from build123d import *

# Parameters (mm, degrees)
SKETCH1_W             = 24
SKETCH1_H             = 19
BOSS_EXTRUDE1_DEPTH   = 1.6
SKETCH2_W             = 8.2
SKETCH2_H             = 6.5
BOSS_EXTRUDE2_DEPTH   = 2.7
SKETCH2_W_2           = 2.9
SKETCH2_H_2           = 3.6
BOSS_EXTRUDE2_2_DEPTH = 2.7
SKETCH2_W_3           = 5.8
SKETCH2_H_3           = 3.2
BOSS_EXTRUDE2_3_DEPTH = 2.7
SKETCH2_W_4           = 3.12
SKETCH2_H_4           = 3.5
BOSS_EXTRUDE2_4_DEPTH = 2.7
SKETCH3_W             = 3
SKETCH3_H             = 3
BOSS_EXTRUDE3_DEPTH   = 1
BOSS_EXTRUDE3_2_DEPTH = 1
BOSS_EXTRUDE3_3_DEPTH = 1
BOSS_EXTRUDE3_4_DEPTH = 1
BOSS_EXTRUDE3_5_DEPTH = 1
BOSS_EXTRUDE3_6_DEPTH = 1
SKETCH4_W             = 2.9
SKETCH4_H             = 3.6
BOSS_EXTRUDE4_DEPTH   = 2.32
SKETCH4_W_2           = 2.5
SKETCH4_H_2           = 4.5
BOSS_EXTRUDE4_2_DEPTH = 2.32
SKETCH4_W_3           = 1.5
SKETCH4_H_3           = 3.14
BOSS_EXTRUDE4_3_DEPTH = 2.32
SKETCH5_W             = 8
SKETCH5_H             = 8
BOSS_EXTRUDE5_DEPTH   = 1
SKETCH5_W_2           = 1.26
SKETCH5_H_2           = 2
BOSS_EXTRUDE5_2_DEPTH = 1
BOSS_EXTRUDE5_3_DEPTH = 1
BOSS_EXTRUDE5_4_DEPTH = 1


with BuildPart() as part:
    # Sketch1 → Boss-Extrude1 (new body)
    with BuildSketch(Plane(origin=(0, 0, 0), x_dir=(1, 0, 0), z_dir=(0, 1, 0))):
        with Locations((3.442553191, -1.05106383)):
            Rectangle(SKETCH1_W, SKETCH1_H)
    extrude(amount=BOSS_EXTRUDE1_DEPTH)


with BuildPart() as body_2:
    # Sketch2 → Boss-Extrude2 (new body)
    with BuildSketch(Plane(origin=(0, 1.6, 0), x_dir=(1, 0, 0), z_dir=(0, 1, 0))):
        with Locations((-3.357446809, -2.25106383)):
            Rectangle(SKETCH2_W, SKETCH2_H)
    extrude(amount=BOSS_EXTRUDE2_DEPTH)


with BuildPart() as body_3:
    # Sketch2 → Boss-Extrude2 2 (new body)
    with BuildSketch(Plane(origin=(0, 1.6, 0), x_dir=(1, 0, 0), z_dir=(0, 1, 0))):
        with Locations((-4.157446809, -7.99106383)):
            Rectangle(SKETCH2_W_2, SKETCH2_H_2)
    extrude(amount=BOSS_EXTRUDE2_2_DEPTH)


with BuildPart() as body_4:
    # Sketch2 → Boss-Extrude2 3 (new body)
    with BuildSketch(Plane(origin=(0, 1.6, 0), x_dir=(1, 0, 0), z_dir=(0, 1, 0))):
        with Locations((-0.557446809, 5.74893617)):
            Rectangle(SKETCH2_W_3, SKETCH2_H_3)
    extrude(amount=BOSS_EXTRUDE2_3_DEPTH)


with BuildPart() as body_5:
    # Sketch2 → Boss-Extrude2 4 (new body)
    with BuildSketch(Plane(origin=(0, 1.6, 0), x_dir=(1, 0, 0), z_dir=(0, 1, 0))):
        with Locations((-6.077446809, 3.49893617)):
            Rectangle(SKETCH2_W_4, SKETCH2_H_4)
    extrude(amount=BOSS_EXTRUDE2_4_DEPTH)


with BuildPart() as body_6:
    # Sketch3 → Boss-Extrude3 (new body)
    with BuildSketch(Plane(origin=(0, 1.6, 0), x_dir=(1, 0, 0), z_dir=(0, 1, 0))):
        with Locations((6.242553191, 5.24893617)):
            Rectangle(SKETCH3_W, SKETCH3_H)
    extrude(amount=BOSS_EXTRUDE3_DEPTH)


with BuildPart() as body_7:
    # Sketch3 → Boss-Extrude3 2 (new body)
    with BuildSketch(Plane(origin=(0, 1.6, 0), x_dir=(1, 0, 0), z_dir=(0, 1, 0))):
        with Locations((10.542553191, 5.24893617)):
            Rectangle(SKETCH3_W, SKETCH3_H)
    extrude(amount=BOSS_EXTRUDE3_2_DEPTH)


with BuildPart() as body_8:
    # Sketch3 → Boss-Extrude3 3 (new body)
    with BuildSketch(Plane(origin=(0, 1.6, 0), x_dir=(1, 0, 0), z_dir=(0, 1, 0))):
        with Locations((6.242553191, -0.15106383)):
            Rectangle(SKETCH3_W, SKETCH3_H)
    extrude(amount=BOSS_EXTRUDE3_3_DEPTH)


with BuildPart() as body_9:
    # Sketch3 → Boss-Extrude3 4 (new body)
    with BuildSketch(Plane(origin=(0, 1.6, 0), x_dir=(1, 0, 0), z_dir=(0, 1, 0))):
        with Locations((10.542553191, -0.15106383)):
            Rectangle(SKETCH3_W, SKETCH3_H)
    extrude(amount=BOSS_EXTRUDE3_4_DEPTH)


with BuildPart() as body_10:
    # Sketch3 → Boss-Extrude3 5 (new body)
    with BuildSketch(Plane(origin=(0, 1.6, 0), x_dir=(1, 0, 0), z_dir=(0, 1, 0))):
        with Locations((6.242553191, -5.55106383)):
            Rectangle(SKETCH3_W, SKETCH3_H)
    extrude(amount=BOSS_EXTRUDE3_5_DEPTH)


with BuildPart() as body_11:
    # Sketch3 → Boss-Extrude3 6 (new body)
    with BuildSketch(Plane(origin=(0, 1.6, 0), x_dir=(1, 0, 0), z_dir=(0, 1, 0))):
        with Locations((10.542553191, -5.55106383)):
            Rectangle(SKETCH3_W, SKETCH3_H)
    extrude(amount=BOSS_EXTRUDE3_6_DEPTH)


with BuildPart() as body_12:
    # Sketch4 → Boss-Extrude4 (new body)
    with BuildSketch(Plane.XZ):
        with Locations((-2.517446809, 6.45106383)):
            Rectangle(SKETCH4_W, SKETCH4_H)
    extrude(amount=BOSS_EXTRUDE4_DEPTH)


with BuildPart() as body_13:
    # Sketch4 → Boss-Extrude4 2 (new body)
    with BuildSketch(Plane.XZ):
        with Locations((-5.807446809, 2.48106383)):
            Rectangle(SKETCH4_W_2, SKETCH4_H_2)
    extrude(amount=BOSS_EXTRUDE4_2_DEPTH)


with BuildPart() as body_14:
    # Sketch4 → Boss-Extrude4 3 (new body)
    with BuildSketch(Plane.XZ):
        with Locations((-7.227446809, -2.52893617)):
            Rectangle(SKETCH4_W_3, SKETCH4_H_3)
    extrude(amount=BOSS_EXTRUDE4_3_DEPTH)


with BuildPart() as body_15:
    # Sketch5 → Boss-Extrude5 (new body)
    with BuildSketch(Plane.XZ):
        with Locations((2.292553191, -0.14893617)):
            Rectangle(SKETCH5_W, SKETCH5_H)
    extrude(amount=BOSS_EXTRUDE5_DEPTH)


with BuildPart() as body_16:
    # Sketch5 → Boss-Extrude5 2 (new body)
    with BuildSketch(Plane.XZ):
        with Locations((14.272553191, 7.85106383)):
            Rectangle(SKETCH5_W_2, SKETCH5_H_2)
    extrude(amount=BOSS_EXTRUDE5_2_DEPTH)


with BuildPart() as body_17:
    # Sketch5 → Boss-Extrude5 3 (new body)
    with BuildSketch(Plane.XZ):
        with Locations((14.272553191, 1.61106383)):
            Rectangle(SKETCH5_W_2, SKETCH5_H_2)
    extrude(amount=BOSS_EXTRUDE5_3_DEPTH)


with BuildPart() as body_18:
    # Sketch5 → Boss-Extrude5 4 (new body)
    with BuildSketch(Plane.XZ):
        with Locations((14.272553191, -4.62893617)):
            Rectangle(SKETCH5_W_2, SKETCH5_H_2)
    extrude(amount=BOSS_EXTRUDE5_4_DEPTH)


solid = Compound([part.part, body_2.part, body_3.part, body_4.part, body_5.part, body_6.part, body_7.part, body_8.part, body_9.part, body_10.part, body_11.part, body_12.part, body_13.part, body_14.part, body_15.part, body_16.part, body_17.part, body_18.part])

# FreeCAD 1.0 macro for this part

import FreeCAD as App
import Part
import Sketcher

V = App.Vector


def add_polygon(sketch, points):
    """Adds a closed chain of lines whose ends are joined by coincident constraints."""
    first, n = sketch.GeometryCount, len(points)
    for a, b in zip(points, points[1:] + points[:1]):
        sketch.addGeometry(Part.LineSegment(App.Vector(*a, 0), App.Vector(*b, 0)), False)
    for i in range(n):
        sketch.addConstraint(Sketcher.Constraint("Coincident", first + i, 2, first + (i + 1) % n, 1))

doc = App.newDocument("Part")
body = doc.addObject("PartDesign::Body", "Body")

# Sketch on XZ plane
sketch1 = body.newObject("Sketcher::SketchObject", "Sketch")
sketch1.AttachmentSupport = (doc.getObject("XZ_Plane"), [""])
sketch1.MapMode = "FlatFace"
add_polygon(sketch1, [(-9, -8), (-9, 11), (15, 11), (15, -8)])  # lines 0-3
sketch1.addConstraint([
    Sketcher.Constraint("Vertical", 0),
    Sketcher.Constraint("Horizontal", 1),
    Sketcher.Constraint("Vertical", 2),
    Sketcher.Constraint("Horizontal", 3),
    Sketcher.Constraint("DistanceX", 1, 1, 1, 2, 24.0),
    Sketcher.Constraint("DistanceY", 0, 1, 0, 2, 19.0),
    Sketcher.Constraint("DistanceX", 0, 2, -1, 1, 8.557447),
    Sketcher.Constraint("DistanceY", -1, 1, 0, 2, 10.551064),
])
pad1 = body.newObject("PartDesign::Pad", "Pad")
pad1.Profile = sketch1
pad1.Length = 1.6
pad1.Reversed = True
body2 = doc.addObject("PartDesign::Body", "Body001")

# Sketch on XZ plane
sketch2 = body2.newObject("Sketcher::SketchObject", "Sketch001")
sketch2.AttachmentSupport = (doc.getObject("XZ_Plane001"), [""])
sketch2.MapMode = "FlatFace"
sketch2.AttachmentOffset = App.Placement(V(0, 0, -1.6), App.Rotation())
add_polygon(sketch2, [(-7, -1), (-7, 6), (1, 6), (1, -1)])  # lines 0-3
sketch2.addConstraint([
    Sketcher.Constraint("Vertical", 0),
    Sketcher.Constraint("Horizontal", 1),
    Sketcher.Constraint("Vertical", 2),
    Sketcher.Constraint("Horizontal", 3),
    Sketcher.Constraint("DistanceX", 1, 1, 1, 2, 8.2),
    Sketcher.Constraint("DistanceY", 0, 1, 0, 2, 6.5),
    Sketcher.Constraint("DistanceX", 0, 2, -1, 1, 7.457447),
    Sketcher.Constraint("DistanceY", -1, 1, 0, 2, 5.501064),
])
pad2 = body2.newObject("PartDesign::Pad", "Pad001")
pad2.Profile = sketch2
pad2.Length = 2.7
pad2.Reversed = True
body3 = doc.addObject("PartDesign::Body", "Body002")

# Sketch on XZ plane
sketch3 = body3.newObject("Sketcher::SketchObject", "Sketch002")
sketch3.AttachmentSupport = (doc.getObject("XZ_Plane002"), [""])
sketch3.MapMode = "FlatFace"
sketch3.AttachmentOffset = App.Placement(V(0, 0, -1.6), App.Rotation())
add_polygon(sketch3, [(-5.6, 6.2), (-5.6, 9.8), (-2.7, 9.8), (-2.7, 6.2)])  # lines 0-3
sketch3.addConstraint([
    Sketcher.Constraint("Vertical", 0),
    Sketcher.Constraint("Horizontal", 1),
    Sketcher.Constraint("Vertical", 2),
    Sketcher.Constraint("Horizontal", 3),
    Sketcher.Constraint("DistanceX", 1, 1, 1, 2, 2.9),
    Sketcher.Constraint("DistanceY", 0, 1, 0, 2, 3.6),
    Sketcher.Constraint("DistanceX", 0, 2, -1, 1, 5.607447),
    Sketcher.Constraint("DistanceY", -1, 1, 0, 2, 9.791064),
])
pad3 = body3.newObject("PartDesign::Pad", "Pad002")
pad3.Profile = sketch3
pad3.Length = 2.7
pad3.Reversed = True
body4 = doc.addObject("PartDesign::Body", "Body003")

# Sketch on XZ plane
sketch4 = body4.newObject("Sketcher::SketchObject", "Sketch003")
sketch4.AttachmentSupport = (doc.getObject("XZ_Plane003"), [""])
sketch4.MapMode = "FlatFace"
sketch4.AttachmentOffset = App.Placement(V(0, 0, -1.6), App.Rotation())
add_polygon(sketch4, [(-3.5, -7.3), (-3.5, -4.1), (2.3, -4.1), (2.3, -7.3)])  # lines 0-3
sketch4.addConstraint([
    Sketcher.Constraint("Vertical", 0),
    Sketcher.Constraint("Horizontal", 1),
    Sketcher.Constraint("Vertical", 2),
    Sketcher.Constraint("Horizontal", 3),
    Sketcher.Constraint("DistanceX", 1, 1, 1, 2, 5.8),
    Sketcher.Constraint("DistanceY", 0, 1, 0, 2, 3.2),
    Sketcher.Constraint("DistanceX", 0, 2, -1, 1, 3.457447),
    Sketcher.Constraint("DistanceY", 0, 2, -1, 1, 4.148936),
])
pad4 = body4.newObject("PartDesign::Pad", "Pad003")
pad4.Profile = sketch4
pad4.Length = 2.7
pad4.Reversed = True
body5 = doc.addObject("PartDesign::Body", "Body004")

# Sketch on XZ plane
sketch5 = body5.newObject("Sketcher::SketchObject", "Sketch004")
sketch5.AttachmentSupport = (doc.getObject("XZ_Plane004"), [""])
sketch5.MapMode = "FlatFace"
sketch5.AttachmentOffset = App.Placement(V(0, 0, -1.6), App.Rotation())
add_polygon(sketch5, [(-7.6, -5.2), (-7.6, -1.7), (-4.5, -1.7), (-4.5, -5.2)])  # lines 0-3
sketch5.addConstraint([
    Sketcher.Constraint("Vertical", 0),
    Sketcher.Constraint("Horizontal", 1),
    Sketcher.Constraint("Vertical", 2),
    Sketcher.Constraint("Horizontal", 3),
    Sketcher.Constraint("DistanceY", 0, 1, 0, 2, 3.5),
    Sketcher.Constraint("DistanceX", 1, 1, 1, 2, 3.12),
    Sketcher.Constraint("DistanceX", 0, 2, -1, 1, 7.637447),
    Sketcher.Constraint("DistanceY", 0, 2, -1, 1, 1.748936),
])
pad5 = body5.newObject("PartDesign::Pad", "Pad004")
pad5.Profile = sketch5
pad5.Length = 2.7
pad5.Reversed = True
body6 = doc.addObject("PartDesign::Body", "Body005")

# Sketch on XZ plane
sketch6 = body6.newObject("Sketcher::SketchObject", "Sketch005")
sketch6.AttachmentSupport = (doc.getObject("XZ_Plane005"), [""])
sketch6.MapMode = "FlatFace"
sketch6.AttachmentOffset = App.Placement(V(0, 0, -1.6), App.Rotation())
add_polygon(sketch6, [(4.7, -6.7), (4.7, -3.7), (7.7, -3.7), (7.7, -6.7)])  # lines 0-3
sketch6.addConstraint([
    Sketcher.Constraint("Vertical", 0),
    Sketcher.Constraint("Horizontal", 1),
    Sketcher.Constraint("Vertical", 2),
    Sketcher.Constraint("Horizontal", 3),
    Sketcher.Constraint("Equal", 3, 0),
    Sketcher.Constraint("DistanceX", 1, 1, 1, 2, 3.0),
    Sketcher.Constraint("DistanceX", -1, 1, 0, 2, 4.742553),
    Sketcher.Constraint("DistanceY", 0, 2, -1, 1, 3.748936),
])
pad6 = body6.newObject("PartDesign::Pad", "Pad005")
pad6.Profile = sketch6
pad6.Length = 1
pad6.Reversed = True
body7 = doc.addObject("PartDesign::Body", "Body006")

# Sketch on XZ plane
sketch7 = body7.newObject("Sketcher::SketchObject", "Sketch006")
sketch7.AttachmentSupport = (doc.getObject("XZ_Plane006"), [""])
sketch7.MapMode = "FlatFace"
sketch7.AttachmentOffset = App.Placement(V(0, 0, -1.6), App.Rotation())
add_polygon(sketch7, [(9, -6.7), (9, -3.7), (12, -3.7), (12, -6.7)])  # lines 0-3
sketch7.addConstraint([
    Sketcher.Constraint("Vertical", 0),
    Sketcher.Constraint("Horizontal", 1),
    Sketcher.Constraint("Vertical", 2),
    Sketcher.Constraint("Horizontal", 3),
    Sketcher.Constraint("Equal", 3, 0),
    Sketcher.Constraint("DistanceX", 1, 1, 1, 2, 3.0),
    Sketcher.Constraint("DistanceX", -1, 1, 0, 2, 9.042553),
    Sketcher.Constraint("DistanceY", 0, 2, -1, 1, 3.748936),
])
pad7 = body7.newObject("PartDesign::Pad", "Pad006")
pad7.Profile = sketch7
pad7.Length = 1
pad7.Reversed = True
body8 = doc.addObject("PartDesign::Body", "Body007")

# Sketch on XZ plane
sketch8 = body8.newObject("Sketcher::SketchObject", "Sketch007")
sketch8.AttachmentSupport = (doc.getObject("XZ_Plane007"), [""])
sketch8.MapMode = "FlatFace"
sketch8.AttachmentOffset = App.Placement(V(0, 0, -1.6), App.Rotation())
add_polygon(sketch8, [(4.7, -1.3), (4.7, 1.7), (7.7, 1.7), (7.7, -1.3)])  # lines 0-3
sketch8.addConstraint([
    Sketcher.Constraint("Vertical", 0),
    Sketcher.Constraint("Horizontal", 1),
    Sketcher.Constraint("Vertical", 2),
    Sketcher.Constraint("Horizontal", 3),
    Sketcher.Constraint("Equal", 3, 0),
    Sketcher.Constraint("DistanceX", 1, 1, 1, 2, 3.0),
    Sketcher.Constraint("DistanceX", -1, 1, 0, 2, 4.742553),
    Sketcher.Constraint("DistanceY", -1, 1, 0, 2, 1.651064),
])
pad8 = body8.newObject("PartDesign::Pad", "Pad007")
pad8.Profile = sketch8
pad8.Length = 1
pad8.Reversed = True
body9 = doc.addObject("PartDesign::Body", "Body008")

# Sketch on XZ plane
sketch9 = body9.newObject("Sketcher::SketchObject", "Sketch008")
sketch9.AttachmentSupport = (doc.getObject("XZ_Plane008"), [""])
sketch9.MapMode = "FlatFace"
sketch9.AttachmentOffset = App.Placement(V(0, 0, -1.6), App.Rotation())
add_polygon(sketch9, [(9, -1.3), (9, 1.7), (12, 1.7), (12, -1.3)])  # lines 0-3
sketch9.addConstraint([
    Sketcher.Constraint("Vertical", 0),
    Sketcher.Constraint("Horizontal", 1),
    Sketcher.Constraint("Vertical", 2),
    Sketcher.Constraint("Horizontal", 3),
    Sketcher.Constraint("Equal", 3, 0),
    Sketcher.Constraint("DistanceX", 1, 1, 1, 2, 3.0),
    Sketcher.Constraint("DistanceX", -1, 1, 0, 2, 9.042553),
    Sketcher.Constraint("DistanceY", -1, 1, 0, 2, 1.651064),
])
pad9 = body9.newObject("PartDesign::Pad", "Pad008")
pad9.Profile = sketch9
pad9.Length = 1
pad9.Reversed = True
body10 = doc.addObject("PartDesign::Body", "Body009")

# Sketch on XZ plane
sketch10 = body10.newObject("Sketcher::SketchObject", "Sketch009")
sketch10.AttachmentSupport = (doc.getObject("XZ_Plane009"), [""])
sketch10.MapMode = "FlatFace"
sketch10.AttachmentOffset = App.Placement(V(0, 0, -1.6), App.Rotation())
add_polygon(sketch10, [(4.7, 4.1), (4.7, 7.1), (7.7, 7.1), (7.7, 4.1)])  # lines 0-3
sketch10.addConstraint([
    Sketcher.Constraint("Vertical", 0),
    Sketcher.Constraint("Horizontal", 1),
    Sketcher.Constraint("Vertical", 2),
    Sketcher.Constraint("Horizontal", 3),
    Sketcher.Constraint("Equal", 3, 0),
    Sketcher.Constraint("DistanceX", 1, 1, 1, 2, 3.0),
    Sketcher.Constraint("DistanceX", -1, 1, 0, 2, 4.742553),
    Sketcher.Constraint("DistanceY", -1, 1, 0, 2, 7.051064),
])
pad10 = body10.newObject("PartDesign::Pad", "Pad009")
pad10.Profile = sketch10
pad10.Length = 1
pad10.Reversed = True
body11 = doc.addObject("PartDesign::Body", "Body010")

# Sketch on XZ plane
sketch11 = body11.newObject("Sketcher::SketchObject", "Sketch010")
sketch11.AttachmentSupport = (doc.getObject("XZ_Plane010"), [""])
sketch11.MapMode = "FlatFace"
sketch11.AttachmentOffset = App.Placement(V(0, 0, -1.6), App.Rotation())
add_polygon(sketch11, [(9, 4.1), (9, 7.1), (12, 7.1), (12, 4.1)])  # lines 0-3
sketch11.addConstraint([
    Sketcher.Constraint("Vertical", 0),
    Sketcher.Constraint("Horizontal", 1),
    Sketcher.Constraint("Vertical", 2),
    Sketcher.Constraint("Horizontal", 3),
    Sketcher.Constraint("Equal", 3, 0),
    Sketcher.Constraint("DistanceX", 1, 1, 1, 2, 3.0),
    Sketcher.Constraint("DistanceX", -1, 1, 0, 2, 9.042553),
    Sketcher.Constraint("DistanceY", -1, 1, 0, 2, 7.051064),
])
pad11 = body11.newObject("PartDesign::Pad", "Pad010")
pad11.Profile = sketch11
pad11.Length = 1
pad11.Reversed = True
body12 = doc.addObject("PartDesign::Body", "Body011")

# Sketch on XZ plane
sketch12 = body12.newObject("Sketcher::SketchObject", "Sketch011")
sketch12.AttachmentSupport = (doc.getObject("XZ_Plane011"), [""])
sketch12.MapMode = "FlatFace"
add_polygon(sketch12, [(-4, 8.3), (-4, 4.7), (-1.1, 4.7), (-1.1, 8.3)])  # lines 0-3
sketch12.addConstraint([
    Sketcher.Constraint("Vertical", 0),
    Sketcher.Constraint("Horizontal", 1),
    Sketcher.Constraint("Vertical", 2),
    Sketcher.Constraint("Horizontal", 3),
    Sketcher.Constraint("DistanceX", 1, 1, 1, 2, 2.9),
    Sketcher.Constraint("DistanceY", 0, 2, 0, 1, 3.6),
    Sketcher.Constraint("DistanceX", 0, 2, -1, 1, 3.967447),
    Sketcher.Constraint("DistanceY", -1, 1, 0, 2, 4.651064),
])
pad12 = body12.newObject("PartDesign::Pad", "Pad011")
pad12.Profile = sketch12
pad12.Length = 2.32
body13 = doc.addObject("PartDesign::Body", "Body012")

# Sketch on XZ plane
sketch13 = body13.newObject("Sketcher::SketchObject", "Sketch012")
sketch13.AttachmentSupport = (doc.getObject("XZ_Plane012"), [""])
sketch13.MapMode = "FlatFace"
add_polygon(sketch13, [(-7.1, 4.7), (-7.1, 0.2), (-4.6, 0.2), (-4.6, 4.7)])  # lines 0-3
sketch13.addConstraint([
    Sketcher.Constraint("Vertical", 0),
    Sketcher.Constraint("Horizontal", 1),
    Sketcher.Constraint("Vertical", 2),
    Sketcher.Constraint("Horizontal", 3),
    Sketcher.Constraint("DistanceX", 1, 1, 1, 2, 2.5),
    Sketcher.Constraint("DistanceY", 0, 2, 0, 1, 4.5),
    Sketcher.Constraint("DistanceX", 0, 2, -1, 1, 7.057447),
    Sketcher.Constraint("DistanceY", -1, 1, 0, 2, 0.231064),
])
pad13 = body13.newObject("PartDesign::Pad", "Pad012")
pad13.Profile = sketch13
pad13.Length = 2.32
body14 = doc.addObject("PartDesign::Body", "Body013")

# Sketch on XZ plane
sketch14 = body14.newObject("Sketcher::SketchObject", "Sketch013")
sketch14.AttachmentSupport = (doc.getObject("XZ_Plane013"), [""])
sketch14.MapMode = "FlatFace"
add_polygon(sketch14, [(-8, -1), (-8, -4.1), (-6.5, -4.1), (-6.5, -1)])  # lines 0-3
sketch14.addConstraint([
    Sketcher.Constraint("Vertical", 0),
    Sketcher.Constraint("Horizontal", 1),
    Sketcher.Constraint("Vertical", 2),
    Sketcher.Constraint("Horizontal", 3),
    Sketcher.Constraint("DistanceX", 1, 1, 1, 2, 1.5),
    Sketcher.Constraint("DistanceY", 0, 2, 0, 1, 3.14),
    Sketcher.Constraint("DistanceX", 0, 2, -1, 1, 7.977447),
    Sketcher.Constraint("DistanceY", 0, 2, -1, 1, 4.098936),
])
pad14 = body14.newObject("PartDesign::Pad", "Pad013")
pad14.Profile = sketch14
pad14.Length = 2.32
body15 = doc.addObject("PartDesign::Body", "Body014")

# Sketch on XZ plane
sketch15 = body15.newObject("Sketcher::SketchObject", "Sketch014")
sketch15.AttachmentSupport = (doc.getObject("XZ_Plane014"), [""])
sketch15.MapMode = "FlatFace"
add_polygon(sketch15, [(-2, 4), (-2, -4), (6, -4), (6, 4)])  # lines 0-3
sketch15.addConstraint([
    Sketcher.Constraint("Vertical", 0),
    Sketcher.Constraint("Horizontal", 1),
    Sketcher.Constraint("Vertical", 2),
    Sketcher.Constraint("Horizontal", 3),
    Sketcher.Constraint("Equal", 3, 0),
    Sketcher.Constraint("DistanceX", 1, 1, 1, 2, 8.0),
    Sketcher.Constraint("DistanceX", 0, 2, -1, 1, 1.707447),
    Sketcher.Constraint("DistanceY", 0, 2, -1, 1, 4.148936),
])
pad15 = body15.newObject("PartDesign::Pad", "Pad014")
pad15.Profile = sketch15
pad15.Length = 1
body16 = doc.addObject("PartDesign::Body", "Body015")

# Sketch on XZ plane
sketch16 = body16.newObject("Sketcher::SketchObject", "Sketch015")
sketch16.AttachmentSupport = (doc.getObject("XZ_Plane015"), [""])
sketch16.MapMode = "FlatFace"
add_polygon(sketch16, [(13.6, 8.9), (13.6, 6.9), (14.9, 6.9), (14.9, 8.9)])  # lines 0-3
sketch16.addConstraint([
    Sketcher.Constraint("Vertical", 0),
    Sketcher.Constraint("Horizontal", 1),
    Sketcher.Constraint("Vertical", 2),
    Sketcher.Constraint("Horizontal", 3),
    Sketcher.Constraint("DistanceY", 0, 2, 0, 1, 2.0),
    Sketcher.Constraint("DistanceX", 1, 1, 1, 2, 1.26),
    Sketcher.Constraint("DistanceX", -1, 1, 0, 2, 13.642553),
    Sketcher.Constraint("DistanceY", -1, 1, 0, 2, 6.851064),
])
pad16 = body16.newObject("PartDesign::Pad", "Pad015")
pad16.Profile = sketch16
pad16.Length = 1
body17 = doc.addObject("PartDesign::Body", "Body016")

# Sketch on XZ plane
sketch17 = body17.newObject("Sketcher::SketchObject", "Sketch016")
sketch17.AttachmentSupport = (doc.getObject("XZ_Plane016"), [""])
sketch17.MapMode = "FlatFace"
add_polygon(sketch17, [(13.6, 2.6), (13.6, 0.6), (14.9, 0.6), (14.9, 2.6)])  # lines 0-3
sketch17.addConstraint([
    Sketcher.Constraint("Vertical", 0),
    Sketcher.Constraint("Horizontal", 1),
    Sketcher.Constraint("Vertical", 2),
    Sketcher.Constraint("Horizontal", 3),
    Sketcher.Constraint("DistanceY", 0, 2, 0, 1, 2.0),
    Sketcher.Constraint("DistanceX", 1, 1, 1, 2, 1.26),
    Sketcher.Constraint("DistanceX", -1, 1, 0, 2, 13.642553),
    Sketcher.Constraint("DistanceY", -1, 1, 0, 2, 0.611064),
])
pad17 = body17.newObject("PartDesign::Pad", "Pad016")
pad17.Profile = sketch17
pad17.Length = 1
body18 = doc.addObject("PartDesign::Body", "Body017")

# Sketch on XZ plane
sketch18 = body18.newObject("Sketcher::SketchObject", "Sketch017")
sketch18.AttachmentSupport = (doc.getObject("XZ_Plane017"), [""])
sketch18.MapMode = "FlatFace"
add_polygon(sketch18, [(13.6, -3.6), (13.6, -5.6), (14.9, -5.6), (14.9, -3.6)])  # lines 0-3
sketch18.addConstraint([
    Sketcher.Constraint("Vertical", 0),
    Sketcher.Constraint("Horizontal", 1),
    Sketcher.Constraint("Vertical", 2),
    Sketcher.Constraint("Horizontal", 3),
    Sketcher.Constraint("DistanceY", 0, 2, 0, 1, 2.0),
    Sketcher.Constraint("DistanceX", 1, 1, 1, 2, 1.26),
    Sketcher.Constraint("DistanceX", -1, 1, 0, 2, 13.642553),
    Sketcher.Constraint("DistanceY", 0, 2, -1, 1, 5.628936),
])
pad18 = body18.newObject("PartDesign::Pad", "Pad017")
pad18.Profile = sketch18
pad18.Length = 1

doc.recompute()
